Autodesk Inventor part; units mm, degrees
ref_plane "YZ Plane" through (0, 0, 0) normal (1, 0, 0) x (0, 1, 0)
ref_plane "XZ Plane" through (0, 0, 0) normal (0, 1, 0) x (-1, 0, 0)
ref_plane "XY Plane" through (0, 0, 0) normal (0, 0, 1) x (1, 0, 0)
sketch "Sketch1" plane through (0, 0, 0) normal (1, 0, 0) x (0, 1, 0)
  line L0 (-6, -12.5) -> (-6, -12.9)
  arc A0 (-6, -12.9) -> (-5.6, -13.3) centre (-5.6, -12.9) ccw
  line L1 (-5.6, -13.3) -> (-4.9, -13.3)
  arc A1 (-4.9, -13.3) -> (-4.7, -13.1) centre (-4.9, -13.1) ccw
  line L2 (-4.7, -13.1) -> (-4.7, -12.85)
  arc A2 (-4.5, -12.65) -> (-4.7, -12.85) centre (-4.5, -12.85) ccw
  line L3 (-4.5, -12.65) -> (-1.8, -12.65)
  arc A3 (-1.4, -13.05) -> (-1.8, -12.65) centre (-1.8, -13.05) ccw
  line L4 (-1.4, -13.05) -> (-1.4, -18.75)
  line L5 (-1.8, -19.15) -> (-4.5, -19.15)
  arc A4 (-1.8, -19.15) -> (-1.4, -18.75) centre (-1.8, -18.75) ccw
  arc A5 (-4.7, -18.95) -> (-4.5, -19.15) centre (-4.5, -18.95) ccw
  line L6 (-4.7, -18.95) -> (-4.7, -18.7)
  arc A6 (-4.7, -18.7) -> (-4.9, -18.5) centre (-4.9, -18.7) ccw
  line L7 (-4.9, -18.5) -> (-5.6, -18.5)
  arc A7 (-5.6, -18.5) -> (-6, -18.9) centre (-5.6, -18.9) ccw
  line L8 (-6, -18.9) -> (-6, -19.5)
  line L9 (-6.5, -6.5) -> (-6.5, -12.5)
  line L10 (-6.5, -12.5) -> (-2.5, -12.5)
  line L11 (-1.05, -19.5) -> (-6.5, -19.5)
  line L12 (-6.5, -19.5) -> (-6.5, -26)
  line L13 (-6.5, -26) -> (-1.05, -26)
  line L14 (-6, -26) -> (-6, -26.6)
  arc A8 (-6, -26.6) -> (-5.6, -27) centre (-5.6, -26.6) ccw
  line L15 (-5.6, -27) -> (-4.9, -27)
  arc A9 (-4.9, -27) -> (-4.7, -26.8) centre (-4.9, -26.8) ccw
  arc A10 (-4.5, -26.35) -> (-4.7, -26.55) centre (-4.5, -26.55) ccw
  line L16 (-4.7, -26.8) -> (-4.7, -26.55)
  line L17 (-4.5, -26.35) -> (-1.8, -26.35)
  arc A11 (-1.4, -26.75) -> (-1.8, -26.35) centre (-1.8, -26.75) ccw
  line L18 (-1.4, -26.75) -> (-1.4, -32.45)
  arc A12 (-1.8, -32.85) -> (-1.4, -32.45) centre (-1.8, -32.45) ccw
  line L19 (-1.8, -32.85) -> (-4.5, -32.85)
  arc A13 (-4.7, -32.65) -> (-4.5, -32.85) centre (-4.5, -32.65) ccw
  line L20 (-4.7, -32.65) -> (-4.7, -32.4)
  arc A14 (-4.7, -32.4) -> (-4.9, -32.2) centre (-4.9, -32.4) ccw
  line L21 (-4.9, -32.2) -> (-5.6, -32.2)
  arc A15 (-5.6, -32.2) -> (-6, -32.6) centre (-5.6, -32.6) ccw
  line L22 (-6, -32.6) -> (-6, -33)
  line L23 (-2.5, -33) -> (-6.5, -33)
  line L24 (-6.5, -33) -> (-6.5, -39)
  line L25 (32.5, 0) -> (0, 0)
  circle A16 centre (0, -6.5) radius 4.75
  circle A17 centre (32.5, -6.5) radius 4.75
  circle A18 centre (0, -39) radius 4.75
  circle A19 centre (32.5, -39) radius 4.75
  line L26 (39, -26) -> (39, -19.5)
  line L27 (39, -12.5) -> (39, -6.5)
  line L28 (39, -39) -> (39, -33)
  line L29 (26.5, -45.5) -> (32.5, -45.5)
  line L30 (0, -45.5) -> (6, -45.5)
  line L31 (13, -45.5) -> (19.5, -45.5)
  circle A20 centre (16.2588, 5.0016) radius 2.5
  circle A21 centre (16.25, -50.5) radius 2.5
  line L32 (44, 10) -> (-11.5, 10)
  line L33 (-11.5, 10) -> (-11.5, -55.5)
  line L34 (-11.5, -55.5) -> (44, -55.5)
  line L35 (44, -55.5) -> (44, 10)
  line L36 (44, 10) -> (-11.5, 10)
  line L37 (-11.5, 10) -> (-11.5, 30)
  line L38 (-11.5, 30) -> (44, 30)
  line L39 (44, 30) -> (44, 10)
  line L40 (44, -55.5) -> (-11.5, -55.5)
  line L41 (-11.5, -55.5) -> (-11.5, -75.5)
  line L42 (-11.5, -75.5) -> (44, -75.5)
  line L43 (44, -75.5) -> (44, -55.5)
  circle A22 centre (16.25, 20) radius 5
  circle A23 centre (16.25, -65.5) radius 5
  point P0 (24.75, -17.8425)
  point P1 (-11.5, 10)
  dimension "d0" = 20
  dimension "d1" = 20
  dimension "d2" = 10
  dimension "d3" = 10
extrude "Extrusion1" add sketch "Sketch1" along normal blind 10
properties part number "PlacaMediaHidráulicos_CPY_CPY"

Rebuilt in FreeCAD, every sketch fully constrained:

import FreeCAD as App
import Part
import Sketcher
from FreeCAD import Vector
Q = App.Units.Quantity


def add_polygon(sketch, points):
    """Adds a closed chain of lines whose ends are joined by coincident constraints."""
    first, n = sketch.GeometryCount, len(points)
    for a, b in zip(points, points[1:] + points[:1]):
        sketch.addGeometry(Part.LineSegment(App.Vector(*a, 0), App.Vector(*b, 0)), False)
    for i in range(n):
        sketch.addConstraint(Sketcher.Constraint("Coincident", first + i, 2, first + (i + 1) % n, 1))

doc = App.newDocument("Part")
params = doc.addObject("Spreadsheet::Sheet", "Params")
for row, (alias, value) in enumerate([
    ("sketch1_diameter", "10 mm"),
    ("sketch1_diameter2", "5 mm"),
    ("sketch1_diameter3", "9.5 mm"),
    ("sketch1_width", "55.5 mm"),
    ("sketch1_height", "105.5 mm"),
    ("pad1_length", "10 mm"),
], start=1):
    params.set(f"A{row}", alias)
    params.set(f"B{row}", "=" + value)
    params.setAlias(f"B{row}", alias)

body = doc.addObject("PartDesign::Body", "Body")

sketch1 = body.newObject("Sketcher::SketchObject", "Sketch")
sketch1.AttachmentSupport = (doc.getObject("YZ_Plane"), [""])
sketch1.MapMode = "FlatFace"
add_polygon(sketch1, [(44, 30), (-11.5, 30), (-11.5, -75.5), (44, -75.5)])
sketch1.addGeometry(Part.Circle(Vector(0, -39, 0), Vector(0, 0, 1), 4.8), False)
sketch1.addGeometry(Part.Circle(Vector(16.2, -50.5, 0), Vector(0, 0, 1), 2.5), False)
sketch1.addGeometry(Part.Circle(Vector(32.5, -39, 0), Vector(0, 0, 1), 4.8), False)
sketch1.addGeometry(Part.Circle(Vector(0, -6.5, 0), Vector(0, 0, 1), 4.8), False)
sketch1.addGeometry(Part.Circle(Vector(32.5, -6.5, 0), Vector(0, 0, 1), 4.8), False)
sketch1.addGeometry(Part.Circle(Vector(16.3, 5, 0), Vector(0, 0, 1), 2.5), False)
sketch1.addGeometry(Part.Circle(Vector(16.2, -65.5, 0), Vector(0, 0, 1), 5), False)
sketch1.addGeometry(Part.Circle(Vector(16.2, 20, 0), Vector(0, 0, 1), 5), False)
sketch1.addConstraint(Sketcher.Constraint("Horizontal", 0))
sketch1.addConstraint(Sketcher.Constraint("Vertical", 1))
sketch1.addConstraint(Sketcher.Constraint("Horizontal", 2))
sketch1.addConstraint(Sketcher.Constraint("Vertical", 3))
sketch1.addConstraint(Sketcher.Constraint("Equal", 4, 6))
sketch1.addConstraint(Sketcher.Constraint("Equal", 6, 7))
sketch1.addConstraint(Sketcher.Constraint("Equal", 7, 8))
sketch1.addConstraint(Sketcher.Constraint("Equal", 5, 9))
sketch1.addConstraint(Sketcher.Constraint("Equal", 10, 11))
sketch1.addConstraint(Sketcher.Constraint("PointOnObject", 4, 3, -2))
sketch1.addConstraint(Sketcher.Constraint("PointOnObject", 7, 3, -2))
sketch1.addConstraint(Sketcher.Constraint("Horizontal", 4, 3, 6, 3))
sketch1.addConstraint(Sketcher.Constraint("Horizontal", 7, 3, 8, 3))
sketch1.addConstraint(Sketcher.Constraint("Vertical", 6, 3, 8, 3))
sketch1.addConstraint(Sketcher.Constraint("Vertical", 5, 3, 10, 3))
sketch1.addConstraint(Sketcher.Constraint("Vertical", 10, 3, 11, 3))
sketch1.addConstraint(Sketcher.Constraint("Diameter", 10, Q("10 mm")))
sketch1.addConstraint(Sketcher.Constraint("Diameter", 5, Q("5 mm")))
sketch1.addConstraint(Sketcher.Constraint("DistanceY", -1, 1, 11, 3, Q("20 mm")))
sketch1.addConstraint(Sketcher.Constraint("DistanceY", 11, 3, 0, 2, Q("10 mm")))
sketch1.addConstraint(Sketcher.Constraint("DistanceY", 1, 2, 10, 3, Q("10 mm")))
sketch1.addConstraint(Sketcher.Constraint("Diameter", 4, Q("9.5 mm")))
sketch1.addConstraint(Sketcher.Constraint("DistanceX", 0, 2, 0, 1, Q("55.5 mm")))
sketch1.addConstraint(Sketcher.Constraint("DistanceY", 1, 2, 1, 1, Q("105.5 mm")))
sketch1.addConstraint(Sketcher.Constraint("DistanceY", 4, 3, -1, 1, Q("39 mm")))
sketch1.addConstraint(Sketcher.Constraint("DistanceX", -1, 1, 2, 2, Q("44 mm")))
sketch1.addConstraint(Sketcher.Constraint("DistanceY", 5, 3, 7, 3, Q("44 mm")))
sketch1.addConstraint(Sketcher.Constraint("DistanceY", 10, 3, 5, 3, Q("15 mm")))
sketch1.addConstraint(Sketcher.Constraint("DistanceX", 0, 2, 8, 3, Q("44 mm")))
sketch1.addConstraint(Sketcher.Constraint("DistanceX", -1, 1, 5, 3, Q("16.25 mm")))
sketch1.addConstraint(Sketcher.Constraint("DistanceX", -1, 1, 9, 3, Q("16.2588 mm")))
sketch1.addConstraint(Sketcher.Constraint("DistanceY", -1, 1, 9, 3, Q("5.0016 mm")))
sketch1.setExpression("Constraints[20]", "Params.sketch1_diameter")
sketch1.setExpression("Constraints[21]", "Params.sketch1_diameter2")
sketch1.setExpression("Constraints[25]", "Params.sketch1_diameter3")
sketch1.setExpression("Constraints[26]", "Params.sketch1_width")
sketch1.setExpression("Constraints[27]", "Params.sketch1_height")
pad1 = body.newObject("PartDesign::Pad", "Pad")
pad1.Profile = sketch1
pad1.setExpression("Length", "Params.pad1_length")

doc.recompute()
